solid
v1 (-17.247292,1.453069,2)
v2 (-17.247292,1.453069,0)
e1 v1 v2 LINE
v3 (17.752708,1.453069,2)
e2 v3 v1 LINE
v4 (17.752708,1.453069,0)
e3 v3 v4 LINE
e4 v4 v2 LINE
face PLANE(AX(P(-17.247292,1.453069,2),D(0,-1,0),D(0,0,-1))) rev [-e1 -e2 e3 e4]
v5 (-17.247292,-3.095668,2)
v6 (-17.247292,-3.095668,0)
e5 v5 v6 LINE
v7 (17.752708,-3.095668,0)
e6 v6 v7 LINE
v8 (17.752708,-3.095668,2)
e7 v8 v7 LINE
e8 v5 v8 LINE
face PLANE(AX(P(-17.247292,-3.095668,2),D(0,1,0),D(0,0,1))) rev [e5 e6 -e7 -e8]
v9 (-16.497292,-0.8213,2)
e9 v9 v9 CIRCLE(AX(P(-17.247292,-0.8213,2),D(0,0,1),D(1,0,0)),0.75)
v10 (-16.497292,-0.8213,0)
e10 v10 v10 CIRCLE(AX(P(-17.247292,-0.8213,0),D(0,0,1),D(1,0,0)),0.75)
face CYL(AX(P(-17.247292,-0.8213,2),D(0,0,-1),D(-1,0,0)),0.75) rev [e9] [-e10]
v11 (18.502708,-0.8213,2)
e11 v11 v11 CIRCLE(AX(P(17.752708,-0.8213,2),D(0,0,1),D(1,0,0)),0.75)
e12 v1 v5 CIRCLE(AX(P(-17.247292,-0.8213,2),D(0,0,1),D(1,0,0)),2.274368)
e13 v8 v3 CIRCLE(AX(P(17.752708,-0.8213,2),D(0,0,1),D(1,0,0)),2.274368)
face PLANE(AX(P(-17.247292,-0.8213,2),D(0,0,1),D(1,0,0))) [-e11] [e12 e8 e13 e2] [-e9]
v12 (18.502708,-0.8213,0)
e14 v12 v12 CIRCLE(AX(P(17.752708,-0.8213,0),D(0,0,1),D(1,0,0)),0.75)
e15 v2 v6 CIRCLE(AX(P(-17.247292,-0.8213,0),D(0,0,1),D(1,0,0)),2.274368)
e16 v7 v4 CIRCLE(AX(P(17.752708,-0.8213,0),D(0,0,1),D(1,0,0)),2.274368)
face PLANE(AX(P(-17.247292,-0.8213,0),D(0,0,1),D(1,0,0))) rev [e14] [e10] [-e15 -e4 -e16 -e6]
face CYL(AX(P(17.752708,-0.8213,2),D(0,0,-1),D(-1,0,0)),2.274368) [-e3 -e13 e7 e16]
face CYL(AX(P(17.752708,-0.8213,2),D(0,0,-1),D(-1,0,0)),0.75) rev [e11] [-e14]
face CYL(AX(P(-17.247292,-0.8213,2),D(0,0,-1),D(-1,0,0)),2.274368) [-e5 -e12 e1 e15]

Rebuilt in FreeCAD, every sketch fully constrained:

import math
import FreeCAD as App
import Part
import Sketcher
from FreeCAD import Vector

doc = App.newDocument("Part")
body = doc.addObject("PartDesign::Body", "Body")

# Sketch on XY plane
sketch1 = doc.addObject("Sketcher::SketchObject", "Sketch")
body.addObject(sketch1)
sketch1.AttachmentSupport = (doc.XY_Plane, [""])
sketch1.MapMode = "FlatFace"
sketch1.addGeometry([
    Part.LineSegment(Vector(17.8, 1.5, 0), Vector(-17.2, 1.5, 0)),  # 0
    Part.ArcOfCircle(Part.Circle(Vector(-17.2, -0.8, 0), Vector(0, 0, 1), 2.3), math.radians(90), math.radians(270)),  # 1
    Part.LineSegment(Vector(-17.2, -3.1, 0), Vector(17.8, -3.1, 0)),  # 2
    Part.ArcOfCircle(Part.Circle(Vector(17.8, -0.8, 0), Vector(0, 0, 1), 2.3), math.radians(-90), math.radians(90)),  # 3
    Part.Circle(Vector(17.8, -0.8, 0), Vector(0, 0, 1), 0.8),  # 4
    Part.Circle(Vector(-17.2, -0.8, 0), Vector(0, 0, 1), 0.8),  # 5
], False)
sketch1.addConstraint([
    Sketcher.Constraint("Tangent", 0, 2, 1, 1),
    Sketcher.Constraint("Tangent", 1, 2, 2, 1),
    Sketcher.Constraint("Tangent", 2, 2, 3, 1),
    Sketcher.Constraint("Tangent", 3, 2, 0, 1),
    Sketcher.Constraint("Horizontal", 0),
    Sketcher.Constraint("Horizontal", 2),
    Sketcher.Constraint("Coincident", 4, 3, 3, 3),
    Sketcher.Constraint("Coincident", 5, 3, 1, 3),
    Sketcher.Constraint("Equal", 4, 5),
    Sketcher.Constraint("Diameter", 4, 1.5),
    Sketcher.Constraint("DistanceX", 0, 2, 0, 1, 35.0),
    Sketcher.Constraint("Radius", 1, 2.274368),
    Sketcher.Constraint("DistanceY", 1, 3, -1, 1, 0.8213),
    Sketcher.Constraint("DistanceX", 1, 3, -1, 1, 17.247292),
])
pad1 = doc.addObject("PartDesign::Pad", "Pad")
body.addObject(pad1)
pad1.Profile = sketch1
pad1.Length = 2

doc.recompute()
